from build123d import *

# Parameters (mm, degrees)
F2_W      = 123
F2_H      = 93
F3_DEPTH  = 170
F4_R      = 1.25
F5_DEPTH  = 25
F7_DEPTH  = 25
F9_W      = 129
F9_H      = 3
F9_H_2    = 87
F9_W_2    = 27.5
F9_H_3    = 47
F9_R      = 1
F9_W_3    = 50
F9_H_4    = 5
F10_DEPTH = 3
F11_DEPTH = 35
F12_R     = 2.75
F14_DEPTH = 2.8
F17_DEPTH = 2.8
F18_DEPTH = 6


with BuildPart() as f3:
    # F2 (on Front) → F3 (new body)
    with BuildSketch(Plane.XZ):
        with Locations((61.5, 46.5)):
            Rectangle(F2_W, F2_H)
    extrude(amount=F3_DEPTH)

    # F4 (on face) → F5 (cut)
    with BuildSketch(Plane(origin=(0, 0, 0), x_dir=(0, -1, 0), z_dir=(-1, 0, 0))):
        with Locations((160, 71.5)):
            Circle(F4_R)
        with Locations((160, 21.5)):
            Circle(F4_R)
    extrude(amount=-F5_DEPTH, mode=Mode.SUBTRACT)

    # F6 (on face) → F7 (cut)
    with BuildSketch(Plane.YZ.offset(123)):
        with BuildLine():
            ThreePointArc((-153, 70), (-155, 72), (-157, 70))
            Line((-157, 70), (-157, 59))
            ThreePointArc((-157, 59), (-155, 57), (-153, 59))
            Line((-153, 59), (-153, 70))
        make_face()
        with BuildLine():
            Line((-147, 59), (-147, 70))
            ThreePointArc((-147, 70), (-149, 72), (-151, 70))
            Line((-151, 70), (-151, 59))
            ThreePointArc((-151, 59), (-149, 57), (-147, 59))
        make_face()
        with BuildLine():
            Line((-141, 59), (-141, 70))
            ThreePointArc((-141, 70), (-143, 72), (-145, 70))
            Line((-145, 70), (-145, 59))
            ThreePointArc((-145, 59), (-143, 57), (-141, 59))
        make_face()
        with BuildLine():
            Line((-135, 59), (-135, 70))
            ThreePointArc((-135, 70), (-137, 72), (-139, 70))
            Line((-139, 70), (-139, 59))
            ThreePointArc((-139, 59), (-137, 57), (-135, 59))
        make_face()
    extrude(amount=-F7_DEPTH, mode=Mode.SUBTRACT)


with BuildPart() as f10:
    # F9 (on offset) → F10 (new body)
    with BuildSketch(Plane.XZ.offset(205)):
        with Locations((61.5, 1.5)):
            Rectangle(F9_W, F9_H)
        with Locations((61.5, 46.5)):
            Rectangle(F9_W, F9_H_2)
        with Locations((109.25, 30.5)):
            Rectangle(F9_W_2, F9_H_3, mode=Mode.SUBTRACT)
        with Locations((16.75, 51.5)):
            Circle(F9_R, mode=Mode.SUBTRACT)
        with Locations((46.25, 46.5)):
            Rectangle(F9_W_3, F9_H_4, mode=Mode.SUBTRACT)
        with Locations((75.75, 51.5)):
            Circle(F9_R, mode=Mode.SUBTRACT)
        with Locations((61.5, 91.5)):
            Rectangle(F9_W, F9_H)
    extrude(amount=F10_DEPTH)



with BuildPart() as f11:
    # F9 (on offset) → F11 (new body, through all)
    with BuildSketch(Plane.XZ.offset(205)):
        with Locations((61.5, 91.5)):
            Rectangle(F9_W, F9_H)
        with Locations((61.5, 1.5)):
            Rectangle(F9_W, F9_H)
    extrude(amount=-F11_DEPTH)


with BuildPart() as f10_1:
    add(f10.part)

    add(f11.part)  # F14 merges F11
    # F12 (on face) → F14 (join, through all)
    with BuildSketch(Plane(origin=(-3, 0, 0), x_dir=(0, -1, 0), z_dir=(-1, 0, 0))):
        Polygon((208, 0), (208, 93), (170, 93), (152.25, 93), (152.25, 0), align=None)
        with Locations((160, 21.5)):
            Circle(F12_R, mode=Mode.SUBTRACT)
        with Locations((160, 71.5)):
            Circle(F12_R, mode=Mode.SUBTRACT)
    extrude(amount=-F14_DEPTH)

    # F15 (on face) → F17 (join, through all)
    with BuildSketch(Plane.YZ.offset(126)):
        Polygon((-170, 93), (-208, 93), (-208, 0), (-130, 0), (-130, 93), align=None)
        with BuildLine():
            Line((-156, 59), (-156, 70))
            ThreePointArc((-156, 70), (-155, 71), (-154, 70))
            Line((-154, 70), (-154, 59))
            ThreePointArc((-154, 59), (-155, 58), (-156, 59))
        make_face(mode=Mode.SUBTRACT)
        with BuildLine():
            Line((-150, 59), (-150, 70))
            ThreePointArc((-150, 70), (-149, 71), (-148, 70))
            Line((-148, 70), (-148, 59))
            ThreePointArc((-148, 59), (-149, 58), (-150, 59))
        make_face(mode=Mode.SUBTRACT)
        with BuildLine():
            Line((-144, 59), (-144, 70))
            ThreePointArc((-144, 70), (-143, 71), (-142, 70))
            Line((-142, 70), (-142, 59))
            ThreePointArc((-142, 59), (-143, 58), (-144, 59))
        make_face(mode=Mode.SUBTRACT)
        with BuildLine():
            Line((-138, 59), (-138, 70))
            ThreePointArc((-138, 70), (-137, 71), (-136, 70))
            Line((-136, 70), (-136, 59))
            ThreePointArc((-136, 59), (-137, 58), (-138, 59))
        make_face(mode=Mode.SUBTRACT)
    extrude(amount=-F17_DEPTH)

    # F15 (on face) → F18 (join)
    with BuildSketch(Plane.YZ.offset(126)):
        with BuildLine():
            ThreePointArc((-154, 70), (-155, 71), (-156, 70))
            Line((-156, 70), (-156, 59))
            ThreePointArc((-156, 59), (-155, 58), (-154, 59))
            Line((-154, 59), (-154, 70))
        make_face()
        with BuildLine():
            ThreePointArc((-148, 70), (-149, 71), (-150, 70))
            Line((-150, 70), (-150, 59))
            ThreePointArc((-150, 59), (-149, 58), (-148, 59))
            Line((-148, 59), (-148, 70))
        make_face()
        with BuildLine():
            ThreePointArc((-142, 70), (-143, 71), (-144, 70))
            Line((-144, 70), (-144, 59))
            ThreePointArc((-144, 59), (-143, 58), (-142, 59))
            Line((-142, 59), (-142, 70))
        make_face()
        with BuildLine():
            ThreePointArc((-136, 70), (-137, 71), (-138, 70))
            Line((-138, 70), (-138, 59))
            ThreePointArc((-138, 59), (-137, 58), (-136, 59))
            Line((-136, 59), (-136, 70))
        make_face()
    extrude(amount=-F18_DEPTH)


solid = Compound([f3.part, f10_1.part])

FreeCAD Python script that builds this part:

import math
import FreeCAD as App
import Part
import Sketcher
Q = App.Units.Quantity

doc = App.newDocument("Part")
body = doc.addObject("PartDesign::Body", "Body")

# Sketch on XZ plane
sketch1 = doc.addObject("Sketcher::SketchObject", "Sketch")
body.addObject(sketch1)
sketch1.AttachmentSupport = (doc.XZ_Plane, [""])
sketch1.MapMode = "FlatFace"
sketch1.addGeometry(Part.LineSegment(App.Vector(0, 93, 0), App.Vector(0, 0, 0)), False)
sketch1.addGeometry(Part.LineSegment(App.Vector(0, 0, 0), App.Vector(123, 0, 0)), False)
sketch1.addGeometry(Part.LineSegment(App.Vector(123, 0, 0), App.Vector(123, 93, 0)), False)
sketch1.addGeometry(Part.LineSegment(App.Vector(123, 93, 0), App.Vector(0, 93, 0)), False)
sketch1.addConstraint(Sketcher.Constraint("Coincident", 0, 2, 1, 1))
sketch1.addConstraint(Sketcher.Constraint("Coincident", 1, 2, 2, 1))
sketch1.addConstraint(Sketcher.Constraint("Coincident", 2, 2, 3, 1))
sketch1.addConstraint(Sketcher.Constraint("Coincident", 3, 2, 0, 1))
sketch1.addConstraint(Sketcher.Constraint("Vertical", 0))
sketch1.addConstraint(Sketcher.Constraint("Horizontal", 1))
sketch1.addConstraint(Sketcher.Constraint("Vertical", 2))
sketch1.addConstraint(Sketcher.Constraint("Horizontal", 3))
sketch1.addConstraint(Sketcher.Constraint("Coincident", 0, 2, -1, 1))
sketch1.addConstraint(Sketcher.Constraint("DistanceX", 1, 1, 1, 2, Q("123 mm")))
sketch1.addConstraint(Sketcher.Constraint("DistanceY", 0, 2, 0, 1, Q("93 mm")))
pad1 = doc.addObject("PartDesign::Pad", "Pad")
body.addObject(pad1)
pad1.Profile = sketch1
pad1.Length = 170

# Sketch on YZ plane
sketch2 = doc.addObject("Sketcher::SketchObject", "Sketch001")
body.addObject(sketch2)
sketch2.AttachmentSupport = (doc.YZ_Plane, [""])
sketch2.MapMode = "FlatFace"
sketch2.addGeometry(Part.Circle(App.Vector(-160, 71.5, 0), App.Vector(0, 0, 1), 1.2), False)
sketch2.addGeometry(Part.Circle(App.Vector(-160, 21.5, 0), App.Vector(0, 0, 1), 1.2), False)
sketch2.addConstraint(Sketcher.Constraint("Equal", 0, 1))
sketch2.addConstraint(Sketcher.Constraint("Vertical", 0, 3, 1, 3))
sketch2.addConstraint(Sketcher.Constraint("Diameter", 0, Q("2.5 mm")))
sketch2.addConstraint(Sketcher.Constraint("DistanceX", 0, 3, -1, 1, Q("160 mm")))
sketch2.addConstraint(Sketcher.Constraint("DistanceY", 1, 3, 0, 3, Q("50 mm")))
sketch2.addConstraint(Sketcher.Constraint("DistanceY", -1, 1, 0, 3, Q("71.5 mm")))
pocket1 = doc.addObject("PartDesign::Pocket", "Pocket")
body.addObject(pocket1)
pocket1.Profile = sketch2
pocket1.Length = 25
pocket1.Reversed = True

# Sketch on YZ plane
sketch3 = doc.addObject("Sketcher::SketchObject", "Sketch002")
body.addObject(sketch3)
sketch3.AttachmentSupport = (doc.YZ_Plane, [""])
sketch3.MapMode = "FlatFace"
sketch3.AttachmentOffset = App.Placement(App.Vector(0, 0, 123), App.Rotation())
sketch3.addGeometry(Part.ArcOfCircle(Part.Circle(App.Vector(-155, 70, 0), App.Vector(0, 0, 1), 2), math.radians(0), math.radians(180)), False)
sketch3.addGeometry(Part.LineSegment(App.Vector(-157, 70, 0), App.Vector(-157, 59, 0)), False)
sketch3.addGeometry(Part.ArcOfCircle(Part.Circle(App.Vector(-155, 59, 0), App.Vector(0, 0, 1), 2), math.radians(180), math.radians(360)), False)
sketch3.addGeometry(Part.LineSegment(App.Vector(-153, 59, 0), App.Vector(-153, 70, 0)), False)
sketch3.addGeometry(Part.LineSegment(App.Vector(-147, 59, 0), App.Vector(-147, 70, 0)), False)
sketch3.addGeometry(Part.ArcOfCircle(Part.Circle(App.Vector(-149, 70, 0), App.Vector(0, 0, 1), 2), math.radians(0), math.radians(180)), False)
sketch3.addGeometry(Part.LineSegment(App.Vector(-151, 70, 0), App.Vector(-151, 59, 0)), False)
sketch3.addGeometry(Part.ArcOfCircle(Part.Circle(App.Vector(-149, 59, 0), App.Vector(0, 0, 1), 2), math.radians(180), math.radians(360)), False)
sketch3.addGeometry(Part.LineSegment(App.Vector(-141, 59, 0), App.Vector(-141, 70, 0)), False)
sketch3.addGeometry(Part.ArcOfCircle(Part.Circle(App.Vector(-143, 70, 0), App.Vector(0, 0, 1), 2), math.radians(0), math.radians(180)), False)
sketch3.addGeometry(Part.LineSegment(App.Vector(-145, 70, 0), App.Vector(-145, 59, 0)), False)
sketch3.addGeometry(Part.ArcOfCircle(Part.Circle(App.Vector(-143, 59, 0), App.Vector(0, 0, 1), 2), math.radians(180), math.radians(360)), False)
sketch3.addGeometry(Part.LineSegment(App.Vector(-135, 59, 0), App.Vector(-135, 70, 0)), False)
sketch3.addGeometry(Part.ArcOfCircle(Part.Circle(App.Vector(-137, 70, 0), App.Vector(0, 0, 1), 2), math.radians(0), math.radians(180)), False)
sketch3.addGeometry(Part.LineSegment(App.Vector(-139, 70, 0), App.Vector(-139, 59, 0)), False)
sketch3.addGeometry(Part.ArcOfCircle(Part.Circle(App.Vector(-137, 59, 0), App.Vector(0, 0, 1), 2), math.radians(180), math.radians(360)), False)
sketch3.addConstraint(Sketcher.Constraint("Tangent", 0, 2, 1, 1))
sketch3.addConstraint(Sketcher.Constraint("Tangent", 1, 2, 2, 1))
sketch3.addConstraint(Sketcher.Constraint("Tangent", 2, 2, 3, 1))
sketch3.addConstraint(Sketcher.Constraint("Tangent", 3, 2, 0, 1))
sketch3.addConstraint(Sketcher.Constraint("Tangent", 4, 2, 5, 1))
sketch3.addConstraint(Sketcher.Constraint("Tangent", 5, 2, 6, 1))
sketch3.addConstraint(Sketcher.Constraint("Tangent", 6, 2, 7, 1))
sketch3.addConstraint(Sketcher.Constraint("Tangent", 7, 2, 4, 1))
sketch3.addConstraint(Sketcher.Constraint("Tangent", 8, 2, 9, 1))
sketch3.addConstraint(Sketcher.Constraint("Tangent", 9, 2, 10, 1))
sketch3.addConstraint(Sketcher.Constraint("Tangent", 10, 2, 11, 1))
sketch3.addConstraint(Sketcher.Constraint("Tangent", 11, 2, 8, 1))
sketch3.addConstraint(Sketcher.Constraint("Tangent", 12, 2, 13, 1))
sketch3.addConstraint(Sketcher.Constraint("Tangent", 13, 2, 14, 1))
sketch3.addConstraint(Sketcher.Constraint("Tangent", 14, 2, 15, 1))
sketch3.addConstraint(Sketcher.Constraint("Tangent", 15, 2, 12, 1))
sketch3.addConstraint(Sketcher.Constraint("Vertical", 1))
sketch3.addConstraint(Sketcher.Constraint("Vertical", 3))
sketch3.addConstraint(Sketcher.Constraint("Vertical", 4))
sketch3.addConstraint(Sketcher.Constraint("Vertical", 6))
sketch3.addConstraint(Sketcher.Constraint("Vertical", 8))
sketch3.addConstraint(Sketcher.Constraint("Vertical", 10))
sketch3.addConstraint(Sketcher.Constraint("Vertical", 12))
sketch3.addConstraint(Sketcher.Constraint("Vertical", 14))
sketch3.addConstraint(Sketcher.Constraint("Equal", 2, 5))
sketch3.addConstraint(Sketcher.Constraint("Equal", 7, 9))
sketch3.addConstraint(Sketcher.Constraint("Equal", 11, 13))
sketch3.addConstraint(Sketcher.Constraint("Horizontal", 0, 3, 5, 3))
sketch3.addConstraint(Sketcher.Constraint("Horizontal", 2, 3, 7, 3))
sketch3.addConstraint(Sketcher.Constraint("Horizontal", 5, 3, 9, 3))
sketch3.addConstraint(Sketcher.Constraint("Horizontal", 7, 3, 11, 3))
sketch3.addConstraint(Sketcher.Constraint("Horizontal", 9, 3, 13, 3))
sketch3.addConstraint(Sketcher.Constraint("Horizontal", 11, 3, 15, 3))
sketch3.addConstraint(Sketcher.Constraint("Radius", 0, Q("2 mm")))
sketch3.addConstraint(Sketcher.Constraint("DistanceY", 1, 2, 1, 1, Q("11 mm")))
sketch3.addConstraint(Sketcher.Constraint("DistanceX", 0, 3, -1, 1, Q("155 mm")))
sketch3.addConstraint(Sketcher.Constraint("DistanceY", -1, 1, 0, 3, Q("70 mm")))
sketch3.addConstraint(Sketcher.Constraint("DistanceX", 5, 3, -1, 1, Q("149 mm")))
sketch3.addConstraint(Sketcher.Constraint("DistanceX", 9, 3, -1, 1, Q("143 mm")))
sketch3.addConstraint(Sketcher.Constraint("DistanceX", 13, 3, -1, 1, Q("137 mm")))
pocket2 = doc.addObject("PartDesign::Pocket", "Pocket001")
body.addObject(pocket2)
pocket2.Profile = sketch3
pocket2.Length = 25
body2 = doc.addObject("PartDesign::Body", "Body001")

# Sketch on XZ plane
sketch4 = doc.addObject("Sketcher::SketchObject", "Sketch003")
body2.addObject(sketch4)
sketch4.AttachmentSupport = (doc.getObject("XZ_Plane001"), [""])
sketch4.MapMode = "FlatFace"
sketch4.AttachmentOffset = App.Placement(App.Vector(0, 0, 205), App.Rotation())
sketch4.addGeometry(Part.LineSegment(App.Vector(-3, 0, 0), App.Vector(126, 0, 0)), False)
sketch4.addGeometry(Part.LineSegment(App.Vector(126, 0, 0), App.Vector(126, 93, 0)), False)
sketch4.addGeometry(Part.LineSegment(App.Vector(126, 93, 0), App.Vector(-3, 93, 0)), False)
sketch4.addGeometry(Part.LineSegment(App.Vector(-3, 93, 0), App.Vector(-3, 0, 0)), False)
sketch4.addGeometry(Part.Circle(App.Vector(16.8, 51.5, 0), App.Vector(0, 0, 1), 1), False)
sketch4.addGeometry(Part.LineSegment(App.Vector(71.2, 44, 0), App.Vector(21.2, 44, 0)), False)
sketch4.addGeometry(Part.LineSegment(App.Vector(21.2, 44, 0), App.Vector(21.2, 49, 0)), False)
sketch4.addGeometry(Part.LineSegment(App.Vector(21.2, 49, 0), App.Vector(71.2, 49, 0)), False)
sketch4.addGeometry(Part.LineSegment(App.Vector(71.2, 49, 0), App.Vector(71.2, 44, 0)), False)
sketch4.addGeometry(Part.LineSegment(App.Vector(123, 7, 0), App.Vector(95.5, 7, 0)), False)
sketch4.addGeometry(Part.LineSegment(App.Vector(95.5, 7, 0), App.Vector(95.5, 54, 0)), False)
sketch4.addGeometry(Part.LineSegment(App.Vector(95.5, 54, 0), App.Vector(123, 54, 0)), False)
sketch4.addGeometry(Part.LineSegment(App.Vector(123, 54, 0), App.Vector(123, 7, 0)), False)
sketch4.addGeometry(Part.Circle(App.Vector(75.8, 51.5, 0), App.Vector(0, 0, 1), 1), False)
sketch4.addConstraint(Sketcher.Constraint("Coincident", 0, 2, 1, 1))
sketch4.addConstraint(Sketcher.Constraint("Coincident", 1, 2, 2, 1))
sketch4.addConstraint(Sketcher.Constraint("Coincident", 2, 2, 3, 1))
sketch4.addConstraint(Sketcher.Constraint("Coincident", 3, 2, 0, 1))
sketch4.addConstraint(Sketcher.Constraint("Coincident", 5, 2, 6, 1))
sketch4.addConstraint(Sketcher.Constraint("Coincident", 6, 2, 7, 1))
sketch4.addConstraint(Sketcher.Constraint("Coincident", 7, 2, 8, 1))
sketch4.addConstraint(Sketcher.Constraint("Coincident", 8, 2, 5, 1))
sketch4.addConstraint(Sketcher.Constraint("Coincident", 9, 2, 10, 1))
sketch4.addConstraint(Sketcher.Constraint("Coincident", 10, 2, 11, 1))
sketch4.addConstraint(Sketcher.Constraint("Coincident", 11, 2, 12, 1))
sketch4.addConstraint(Sketcher.Constraint("Coincident", 12, 2, 9, 1))
sketch4.addConstraint(Sketcher.Constraint("Horizontal", 0))
sketch4.addConstraint(Sketcher.Constraint("Vertical", 1))
sketch4.addConstraint(Sketcher.Constraint("Horizontal", 2))
sketch4.addConstraint(Sketcher.Constraint("Vertical", 3))
sketch4.addConstraint(Sketcher.Constraint("Horizontal", 5))
sketch4.addConstraint(Sketcher.Constraint("Vertical", 6))
sketch4.addConstraint(Sketcher.Constraint("Horizontal", 7))
sketch4.addConstraint(Sketcher.Constraint("Vertical", 8))
sketch4.addConstraint(Sketcher.Constraint("Horizontal", 9))
sketch4.addConstraint(Sketcher.Constraint("Vertical", 10))
sketch4.addConstraint(Sketcher.Constraint("Horizontal", 11))
sketch4.addConstraint(Sketcher.Constraint("Vertical", 12))
sketch4.addConstraint(Sketcher.Constraint("Equal", 4, 13))
sketch4.addConstraint(Sketcher.Constraint("PointOnObject", 0, 2, -1))
sketch4.addConstraint(Sketcher.Constraint("Horizontal", 4, 3, 13, 3))
sketch4.addConstraint(Sketcher.Constraint("Diameter", 4, Q("2 mm")))
sketch4.addConstraint(Sketcher.Constraint("DistanceX", 0, 1, 0, 2, Q("129 mm")))
sketch4.addConstraint(Sketcher.Constraint("DistanceX", 5, 2, 5, 1, Q("50 mm")))
sketch4.addConstraint(Sketcher.Constraint("DistanceY", 1, 1, 1, 2, Q("93 mm")))
sketch4.addConstraint(Sketcher.Constraint("DistanceY", 6, 1, 6, 2, Q("5 mm")))
sketch4.addConstraint(Sketcher.Constraint("DistanceY", 10, 1, 10, 2, Q("47 mm")))
sketch4.addConstraint(Sketcher.Constraint("DistanceX", 9, 2, 9, 1, Q("27.5 mm")))
sketch4.addConstraint(Sketcher.Constraint("DistanceX", -1, 1, 0, 2, Q("126 mm")))
sketch4.addConstraint(Sketcher.Constraint("DistanceY", -1, 1, 5, 2, Q("44 mm")))
sketch4.addConstraint(Sketcher.Constraint("DistanceY", -1, 1, 9, 2, Q("7 mm")))
sketch4.addConstraint(Sketcher.Constraint("DistanceX", -1, 1, 11, 2, Q("123 mm")))
sketch4.addConstraint(Sketcher.Constraint("DistanceX", 4, 3, 13, 3, Q("59 mm")))
sketch4.addConstraint(Sketcher.Constraint("DistanceY", -1, 1, 4, 3, Q("51.5 mm")))
sketch4.addConstraint(Sketcher.Constraint("DistanceX", 4, 3, 5, 2, Q("4.5 mm")))
sketch4.addConstraint(Sketcher.Constraint("DistanceX", -1, 1, 4, 3, Q("16.75 mm")))
pad2 = doc.addObject("PartDesign::Pad", "Pad001")
body2.addObject(pad2)
pad2.Profile = sketch4
pad2.Length = 3
body3 = doc.addObject("PartDesign::Body", "Body002")
body3.AllowCompound = True

# Sketch on XZ plane
sketch5 = doc.addObject("Sketcher::SketchObject", "Sketch004")
body3.addObject(sketch5)
sketch5.AttachmentSupport = (doc.getObject("XZ_Plane002"), [""])
sketch5.MapMode = "FlatFace"
sketch5.AttachmentOffset = App.Placement(App.Vector(0, 0, 205), App.Rotation())
sketch5.addGeometry(Part.LineSegment(App.Vector(-3, 93, 0), App.Vector(-3, 90, 0)), False)
sketch5.addGeometry(Part.LineSegment(App.Vector(-3, 90, 0), App.Vector(126, 90, 0)), False)
sketch5.addGeometry(Part.LineSegment(App.Vector(126, 90, 0), App.Vector(126, 93, 0)), False)
sketch5.addGeometry(Part.LineSegment(App.Vector(126, 93, 0), App.Vector(-3, 93, 0)), False)
sketch5.addGeometry(Part.LineSegment(App.Vector(-3, 3, 0), App.Vector(-3, 0, 0)), False)
sketch5.addGeometry(Part.LineSegment(App.Vector(-3, 0, 0), App.Vector(126, 0, 0)), False)
sketch5.addGeometry(Part.LineSegment(App.Vector(126, 0, 0), App.Vector(126, 3, 0)), False)
sketch5.addGeometry(Part.LineSegment(App.Vector(126, 3, 0), App.Vector(-3, 3, 0)), False)
sketch5.addConstraint(Sketcher.Constraint("Coincident", 0, 2, 1, 1))
sketch5.addConstraint(Sketcher.Constraint("Coincident", 1, 2, 2, 1))
sketch5.addConstraint(Sketcher.Constraint("Coincident", 2, 2, 3, 1))
sketch5.addConstraint(Sketcher.Constraint("Coincident", 3, 2, 0, 1))
sketch5.addConstraint(Sketcher.Constraint("Coincident", 4, 2, 5, 1))
sketch5.addConstraint(Sketcher.Constraint("Coincident", 5, 2, 6, 1))
sketch5.addConstraint(Sketcher.Constraint("Coincident", 6, 2, 7, 1))
sketch5.addConstraint(Sketcher.Constraint("Coincident", 7, 2, 4, 1))
sketch5.addConstraint(Sketcher.Constraint("Vertical", 0))
sketch5.addConstraint(Sketcher.Constraint("Horizontal", 1))
sketch5.addConstraint(Sketcher.Constraint("Vertical", 2))
sketch5.addConstraint(Sketcher.Constraint("Horizontal", 3))
sketch5.addConstraint(Sketcher.Constraint("Vertical", 4))
sketch5.addConstraint(Sketcher.Constraint("Horizontal", 5))
sketch5.addConstraint(Sketcher.Constraint("Vertical", 6))
sketch5.addConstraint(Sketcher.Constraint("Horizontal", 7))
sketch5.addConstraint(Sketcher.Constraint("PointOnObject", 4, 2, -1))
sketch5.addConstraint(Sketcher.Constraint("Vertical", 3, 2, 4, 2))
sketch5.addConstraint(Sketcher.Constraint("Vertical", 2, 2, 5, 2))
sketch5.addConstraint(Sketcher.Constraint("Equal", 2, 4))
sketch5.addConstraint(Sketcher.Constraint("DistanceX", 1, 1, 1, 2, Q("129 mm")))
sketch5.addConstraint(Sketcher.Constraint("DistanceY", 0, 2, 0, 1, Q("3 mm")))
sketch5.addConstraint(Sketcher.Constraint("DistanceX", 0, 2, -1, 1, Q("3 mm")))
sketch5.addConstraint(Sketcher.Constraint("DistanceY", -1, 1, 0, 2, Q("90 mm")))
pad3 = doc.addObject("PartDesign::Pad", "Pad002")
body3.addObject(pad3)
pad3.Profile = sketch5
pad3.Length = 35
pad3.Reversed = True
doc.recompute()

boolean = doc.addObject("PartDesign::Boolean", "Boolean")
body2.addObject(boolean)
boolean.Type = "Fuse"
boolean.addObjects([body3])

# Sketch on YZ plane
sketch6 = doc.addObject("Sketcher::SketchObject", "Sketch005")
body2.addObject(sketch6)
sketch6.AttachmentSupport = (doc.getObject("YZ_Plane001"), [""])
sketch6.MapMode = "FlatFace"
sketch6.AttachmentOffset = App.Placement(App.Vector(0, 0, -3), App.Rotation())
sketch6.addGeometry(Part.LineSegment(App.Vector(-208, 0, 0), App.Vector(-208, 93, 0)), False)
sketch6.addGeometry(Part.LineSegment(App.Vector(-208, 93, 0), App.Vector(-152.2, 93, 0)), False)
sketch6.addGeometry(Part.LineSegment(App.Vector(-152.2, 93, 0), App.Vector(-152.2, 0, 0)), False)
sketch6.addGeometry(Part.LineSegment(App.Vector(-152.2, 0, 0), App.Vector(-208, 0, 0)), False)
sketch6.addGeometry(Part.Circle(App.Vector(-160, 21.5, 0), App.Vector(0, 0, 1), 2.8), False)
sketch6.addGeometry(Part.Circle(App.Vector(-160, 71.5, 0), App.Vector(0, 0, 1), 2.8), False)
sketch6.addConstraint(Sketcher.Constraint("Coincident", 0, 2, 1, 1))
sketch6.addConstraint(Sketcher.Constraint("Coincident", 1, 2, 2, 1))
sketch6.addConstraint(Sketcher.Constraint("Coincident", 2, 2, 3, 1))
sketch6.addConstraint(Sketcher.Constraint("Coincident", 3, 2, 0, 1))
sketch6.addConstraint(Sketcher.Constraint("Vertical", 0))
sketch6.addConstraint(Sketcher.Constraint("Horizontal", 1))
sketch6.addConstraint(Sketcher.Constraint("Vertical", 2))
sketch6.addConstraint(Sketcher.Constraint("Horizontal", 3))
sketch6.addConstraint(Sketcher.Constraint("Equal", 4, 5))
sketch6.addConstraint(Sketcher.Constraint("PointOnObject", 2, 2, -1))
sketch6.addConstraint(Sketcher.Constraint("Vertical", 4, 3, 5, 3))
sketch6.addConstraint(Sketcher.Constraint("Diameter", 4, Q("5.5 mm")))
sketch6.addConstraint(Sketcher.Constraint("DistanceY", 0, 1, 0, 2, Q("93 mm")))
sketch6.addConstraint(Sketcher.Constraint("DistanceX", 4, 3, -1, 1, Q("160 mm")))
sketch6.addConstraint(Sketcher.Constraint("DistanceX", 0, 2, -1, 1, Q("208 mm")))
sketch6.addConstraint(Sketcher.Constraint("DistanceY", 4, 3, 5, 3, Q("50 mm")))
sketch6.addConstraint(Sketcher.Constraint("DistanceX", 1, 1, 1, 2, Q("55.75 mm")))
sketch6.addConstraint(Sketcher.Constraint("DistanceY", -1, 1, 4, 3, Q("21.5 mm")))
pad4 = doc.addObject("PartDesign::Pad", "Pad003")
body2.addObject(pad4)
pad4.Profile = sketch6
pad4.Length = 2.8

# Sketch on YZ plane
sketch7 = doc.addObject("Sketcher::SketchObject", "Sketch006")
body2.addObject(sketch7)
sketch7.AttachmentSupport = (doc.getObject("YZ_Plane001"), [""])
sketch7.MapMode = "FlatFace"
sketch7.AttachmentOffset = App.Placement(App.Vector(0, 0, 126), App.Rotation())
sketch7.addGeometry(Part.LineSegment(App.Vector(-208, 93, 0), App.Vector(-208, 0, 0)), False)
sketch7.addGeometry(Part.LineSegment(App.Vector(-208, 0, 0), App.Vector(-130, 0, 0)), False)
sketch7.addGeometry(Part.LineSegment(App.Vector(-130, 0, 0), App.Vector(-130, 93, 0)), False)
sketch7.addGeometry(Part.LineSegment(App.Vector(-130, 93, 0), App.Vector(-208, 93, 0)), False)
sketch7.addGeometry(Part.ArcOfCircle(Part.Circle(App.Vector(-155, 59, 0), App.Vector(0, 0, 1), 1), math.radians(180), math.radians(360)), False)
sketch7.addGeometry(Part.LineSegment(App.Vector(-156, 59, 0), App.Vector(-156, 70, 0)), False)
sketch7.addGeometry(Part.ArcOfCircle(Part.Circle(App.Vector(-155, 70, 0), App.Vector(0, 0, 1), 1), math.radians(0), math.radians(180)), False)
sketch7.addGeometry(Part.LineSegment(App.Vector(-154, 70, 0), App.Vector(-154, 59, 0)), False)
sketch7.addGeometry(Part.ArcOfCircle(Part.Circle(App.Vector(-149, 59, 0), App.Vector(0, 0, 1), 1), math.radians(180), math.radians(360)), False)
sketch7.addGeometry(Part.LineSegment(App.Vector(-150, 59, 0), App.Vector(-150, 70, 0)), False)
sketch7.addGeometry(Part.ArcOfCircle(Part.Circle(App.Vector(-149, 70, 0), App.Vector(0, 0, 1), 1), math.radians(0), math.radians(180)), False)
sketch7.addGeometry(Part.LineSegment(App.Vector(-148, 70, 0), App.Vector(-148, 59, 0)), False)
sketch7.addGeometry(Part.ArcOfCircle(Part.Circle(App.Vector(-143, 59, 0), App.Vector(0, 0, 1), 1), math.radians(180), math.radians(360)), False)
sketch7.addGeometry(Part.LineSegment(App.Vector(-144, 59, 0), App.Vector(-144, 70, 0)), False)
sketch7.addGeometry(Part.ArcOfCircle(Part.Circle(App.Vector(-143, 70, 0), App.Vector(0, 0, 1), 1), math.radians(0), math.radians(180)), False)
sketch7.addGeometry(Part.LineSegment(App.Vector(-142, 70, 0), App.Vector(-142, 59, 0)), False)
sketch7.addGeometry(Part.ArcOfCircle(Part.Circle(App.Vector(-137, 59, 0), App.Vector(0, 0, 1), 1), math.radians(180), math.radians(360)), False)
sketch7.addGeometry(Part.LineSegment(App.Vector(-138, 59, 0), App.Vector(-138, 70, 0)), False)
sketch7.addGeometry(Part.ArcOfCircle(Part.Circle(App.Vector(-137, 70, 0), App.Vector(0, 0, 1), 1), math.radians(0), math.radians(180)), False)
sketch7.addGeometry(Part.LineSegment(App.Vector(-136, 70, 0), App.Vector(-136, 59, 0)), False)
sketch7.addConstraint(Sketcher.Constraint("Coincident", 0, 2, 1, 1))
sketch7.addConstraint(Sketcher.Constraint("Coincident", 1, 2, 2, 1))
sketch7.addConstraint(Sketcher.Constraint("Coincident", 2, 2, 3, 1))
sketch7.addConstraint(Sketcher.Constraint("Coincident", 3, 2, 0, 1))
sketch7.addConstraint(Sketcher.Constraint("Tangent", 4, 1, 5, 1))
sketch7.addConstraint(Sketcher.Constraint("Tangent", 5, 2, 6, 2))
sketch7.addConstraint(Sketcher.Constraint("Tangent", 6, 1, 7, 1))
sketch7.addConstraint(Sketcher.Constraint("Tangent", 7, 2, 4, 2))
sketch7.addConstraint(Sketcher.Constraint("Tangent", 8, 1, 9, 1))
sketch7.addConstraint(Sketcher.Constraint("Tangent", 9, 2, 10, 2))
sketch7.addConstraint(Sketcher.Constraint("Tangent", 10, 1, 11, 1))
sketch7.addConstraint(Sketcher.Constraint("Tangent", 11, 2, 8, 2))
sketch7.addConstraint(Sketcher.Constraint("Tangent", 12, 1, 13, 1))
sketch7.addConstraint(Sketcher.Constraint("Tangent", 13, 2, 14, 2))
sketch7.addConstraint(Sketcher.Constraint("Tangent", 14, 1, 15, 1))
sketch7.addConstraint(Sketcher.Constraint("Tangent", 15, 2, 12, 2))
sketch7.addConstraint(Sketcher.Constraint("Tangent", 16, 1, 17, 1))
sketch7.addConstraint(Sketcher.Constraint("Tangent", 17, 2, 18, 2))
sketch7.addConstraint(Sketcher.Constraint("Tangent", 18, 1, 19, 1))
sketch7.addConstraint(Sketcher.Constraint("Tangent", 19, 2, 16, 2))
sketch7.addConstraint(Sketcher.Constraint("Vertical", 0))
sketch7.addConstraint(Sketcher.Constraint("Horizontal", 1))
sketch7.addConstraint(Sketcher.Constraint("Vertical", 2))
sketch7.addConstraint(Sketcher.Constraint("Horizontal", 3))
sketch7.addConstraint(Sketcher.Constraint("Vertical", 5))
sketch7.addConstraint(Sketcher.Constraint("Vertical", 7))
sketch7.addConstraint(Sketcher.Constraint("Vertical", 9))
sketch7.addConstraint(Sketcher.Constraint("Vertical", 11))
sketch7.addConstraint(Sketcher.Constraint("Vertical", 13))
sketch7.addConstraint(Sketcher.Constraint("Vertical", 15))
sketch7.addConstraint(Sketcher.Constraint("Vertical", 17))
sketch7.addConstraint(Sketcher.Constraint("Vertical", 19))
sketch7.addConstraint(Sketcher.Constraint("Equal", 6, 8))
sketch7.addConstraint(Sketcher.Constraint("Equal", 10, 12))
sketch7.addConstraint(Sketcher.Constraint("Equal", 14, 16))
sketch7.addConstraint(Sketcher.Constraint("PointOnObject", 0, 2, -1))
sketch7.addConstraint(Sketcher.Constraint("Horizontal", 4, 3, 8, 3))
sketch7.addConstraint(Sketcher.Constraint("Horizontal", 6, 3, 10, 3))
sketch7.addConstraint(Sketcher.Constraint("Horizontal", 8, 3, 12, 3))
sketch7.addConstraint(Sketcher.Constraint("Horizontal", 10, 3, 14, 3))
sketch7.addConstraint(Sketcher.Constraint("Horizontal", 12, 3, 16, 3))
sketch7.addConstraint(Sketcher.Constraint("Horizontal", 14, 3, 18, 3))
sketch7.addConstraint(Sketcher.Constraint("Radius", 4, Q("1 mm")))
sketch7.addConstraint(Sketcher.Constraint("DistanceX", 1, 1, 1, 2, Q("78 mm")))
sketch7.addConstraint(Sketcher.Constraint("DistanceY", 0, 2, 0, 1, Q("93 mm")))
sketch7.addConstraint(Sketcher.Constraint("DistanceY", 5, 1, 5, 2, Q("11 mm")))
sketch7.addConstraint(Sketcher.Constraint("DistanceX", 4, 3, -1, 1, Q("155 mm")))
sketch7.addConstraint(Sketcher.Constraint("DistanceY", -1, 1, 4, 3, Q("59 mm")))
sketch7.addConstraint(Sketcher.Constraint("DistanceX", 8, 3, -1, 1, Q("149 mm")))
sketch7.addConstraint(Sketcher.Constraint("DistanceX", 12, 3, -1, 1, Q("143 mm")))
sketch7.addConstraint(Sketcher.Constraint("DistanceX", 16, 3, -1, 1, Q("137 mm")))
sketch7.addConstraint(Sketcher.Constraint("DistanceX", 0, 2, -1, 1, Q("208 mm")))
pad5 = doc.addObject("PartDesign::Pad", "Pad004")
body2.addObject(pad5)
pad5.Profile = sketch7
pad5.Length = 2.8
pad5.Reversed = True

# Sketch on YZ plane
sketch8 = doc.addObject("Sketcher::SketchObject", "Sketch007")
body2.addObject(sketch8)
sketch8.AttachmentSupport = (doc.getObject("YZ_Plane001"), [""])
sketch8.MapMode = "FlatFace"
sketch8.AttachmentOffset = App.Placement(App.Vector(0, 0, 126), App.Rotation())
sketch8.addGeometry(Part.ArcOfCircle(Part.Circle(App.Vector(-155, 70, 0), App.Vector(0, 0, 1), 1), math.radians(0), math.radians(180)), False)
sketch8.addGeometry(Part.LineSegment(App.Vector(-156, 70, 0), App.Vector(-156, 59, 0)), False)
sketch8.addGeometry(Part.ArcOfCircle(Part.Circle(App.Vector(-155, 59, 0), App.Vector(0, 0, 1), 1), math.radians(180), math.radians(360)), False)
sketch8.addGeometry(Part.LineSegment(App.Vector(-154, 59, 0), App.Vector(-154, 70, 0)), False)
sketch8.addGeometry(Part.ArcOfCircle(Part.Circle(App.Vector(-149, 70, 0), App.Vector(0, 0, 1), 1), math.radians(0), math.radians(180)), False)
sketch8.addGeometry(Part.LineSegment(App.Vector(-150, 70, 0), App.Vector(-150, 59, 0)), False)
sketch8.addGeometry(Part.ArcOfCircle(Part.Circle(App.Vector(-149, 59, 0), App.Vector(0, 0, 1), 1), math.radians(180), math.radians(360)), False)
sketch8.addGeometry(Part.LineSegment(App.Vector(-148, 59, 0), App.Vector(-148, 70, 0)), False)
sketch8.addGeometry(Part.ArcOfCircle(Part.Circle(App.Vector(-143, 70, 0), App.Vector(0, 0, 1), 1), math.radians(0), math.radians(180)), False)
sketch8.addGeometry(Part.LineSegment(App.Vector(-144, 70, 0), App.Vector(-144, 59, 0)), False)
sketch8.addGeometry(Part.ArcOfCircle(Part.Circle(App.Vector(-143, 59, 0), App.Vector(0, 0, 1), 1), math.radians(180), math.radians(360)), False)
sketch8.addGeometry(Part.LineSegment(App.Vector(-142, 59, 0), App.Vector(-142, 70, 0)), False)
sketch8.addGeometry(Part.ArcOfCircle(Part.Circle(App.Vector(-137, 70, 0), App.Vector(0, 0, 1), 1), math.radians(0), math.radians(180)), False)
sketch8.addGeometry(Part.LineSegment(App.Vector(-138, 70, 0), App.Vector(-138, 59, 0)), False)
sketch8.addGeometry(Part.ArcOfCircle(Part.Circle(App.Vector(-137, 59, 0), App.Vector(0, 0, 1), 1), math.radians(180), math.radians(360)), False)
sketch8.addGeometry(Part.LineSegment(App.Vector(-136, 59, 0), App.Vector(-136, 70, 0)), False)
sketch8.addConstraint(Sketcher.Constraint("Tangent", 0, 2, 1, 1))
sketch8.addConstraint(Sketcher.Constraint("Tangent", 1, 2, 2, 1))
sketch8.addConstraint(Sketcher.Constraint("Tangent", 2, 2, 3, 1))
sketch8.addConstraint(Sketcher.Constraint("Tangent", 3, 2, 0, 1))
sketch8.addConstraint(Sketcher.Constraint("Tangent", 4, 2, 5, 1))
sketch8.addConstraint(Sketcher.Constraint("Tangent", 5, 2, 6, 1))
sketch8.addConstraint(Sketcher.Constraint("Tangent", 6, 2, 7, 1))
sketch8.addConstraint(Sketcher.Constraint("Tangent", 7, 2, 4, 1))
sketch8.addConstraint(Sketcher.Constraint("Tangent", 8, 2, 9, 1))
sketch8.addConstraint(Sketcher.Constraint("Tangent", 9, 2, 10, 1))
sketch8.addConstraint(Sketcher.Constraint("Tangent", 10, 2, 11, 1))
sketch8.addConstraint(Sketcher.Constraint("Tangent", 11, 2, 8, 1))
sketch8.addConstraint(Sketcher.Constraint("Tangent", 12, 2, 13, 1))
sketch8.addConstraint(Sketcher.Constraint("Tangent", 13, 2, 14, 1))
sketch8.addConstraint(Sketcher.Constraint("Tangent", 14, 2, 15, 1))
sketch8.addConstraint(Sketcher.Constraint("Tangent", 15, 2, 12, 1))
sketch8.addConstraint(Sketcher.Constraint("Vertical", 1))
sketch8.addConstraint(Sketcher.Constraint("Vertical", 3))
sketch8.addConstraint(Sketcher.Constraint("Vertical", 5))
sketch8.addConstraint(Sketcher.Constraint("Vertical", 7))
sketch8.addConstraint(Sketcher.Constraint("Vertical", 9))
sketch8.addConstraint(Sketcher.Constraint("Vertical", 11))
sketch8.addConstraint(Sketcher.Constraint("Vertical", 13))
sketch8.addConstraint(Sketcher.Constraint("Vertical", 15))
sketch8.addConstraint(Sketcher.Constraint("Equal", 2, 4))
sketch8.addConstraint(Sketcher.Constraint("Equal", 6, 8))
sketch8.addConstraint(Sketcher.Constraint("Equal", 10, 12))
sketch8.addConstraint(Sketcher.Constraint("Horizontal", 0, 3, 4, 3))
sketch8.addConstraint(Sketcher.Constraint("Horizontal", 2, 3, 6, 3))
sketch8.addConstraint(Sketcher.Constraint("Horizontal", 4, 3, 8, 3))
sketch8.addConstraint(Sketcher.Constraint("Horizontal", 6, 3, 10, 3))
sketch8.addConstraint(Sketcher.Constraint("Horizontal", 8, 3, 12, 3))
sketch8.addConstraint(Sketcher.Constraint("Horizontal", 10, 3, 14, 3))
sketch8.addConstraint(Sketcher.Constraint("Radius", 0, Q("1 mm")))
sketch8.addConstraint(Sketcher.Constraint("DistanceY", 1, 2, 1, 1, Q("11 mm")))
sketch8.addConstraint(Sketcher.Constraint("DistanceX", 0, 3, -1, 1, Q("155 mm")))
sketch8.addConstraint(Sketcher.Constraint("DistanceY", -1, 1, 0, 3, Q("70 mm")))
sketch8.addConstraint(Sketcher.Constraint("DistanceX", 4, 3, -1, 1, Q("149 mm")))
sketch8.addConstraint(Sketcher.Constraint("DistanceX", 8, 3, -1, 1, Q("143 mm")))
sketch8.addConstraint(Sketcher.Constraint("DistanceX", 12, 3, -1, 1, Q("137 mm")))
pad6 = doc.addObject("PartDesign::Pad", "Pad005")
body2.addObject(pad6)
pad6.Profile = sketch8
pad6.Length = 6
pad6.Reversed = True

doc.recompute()
